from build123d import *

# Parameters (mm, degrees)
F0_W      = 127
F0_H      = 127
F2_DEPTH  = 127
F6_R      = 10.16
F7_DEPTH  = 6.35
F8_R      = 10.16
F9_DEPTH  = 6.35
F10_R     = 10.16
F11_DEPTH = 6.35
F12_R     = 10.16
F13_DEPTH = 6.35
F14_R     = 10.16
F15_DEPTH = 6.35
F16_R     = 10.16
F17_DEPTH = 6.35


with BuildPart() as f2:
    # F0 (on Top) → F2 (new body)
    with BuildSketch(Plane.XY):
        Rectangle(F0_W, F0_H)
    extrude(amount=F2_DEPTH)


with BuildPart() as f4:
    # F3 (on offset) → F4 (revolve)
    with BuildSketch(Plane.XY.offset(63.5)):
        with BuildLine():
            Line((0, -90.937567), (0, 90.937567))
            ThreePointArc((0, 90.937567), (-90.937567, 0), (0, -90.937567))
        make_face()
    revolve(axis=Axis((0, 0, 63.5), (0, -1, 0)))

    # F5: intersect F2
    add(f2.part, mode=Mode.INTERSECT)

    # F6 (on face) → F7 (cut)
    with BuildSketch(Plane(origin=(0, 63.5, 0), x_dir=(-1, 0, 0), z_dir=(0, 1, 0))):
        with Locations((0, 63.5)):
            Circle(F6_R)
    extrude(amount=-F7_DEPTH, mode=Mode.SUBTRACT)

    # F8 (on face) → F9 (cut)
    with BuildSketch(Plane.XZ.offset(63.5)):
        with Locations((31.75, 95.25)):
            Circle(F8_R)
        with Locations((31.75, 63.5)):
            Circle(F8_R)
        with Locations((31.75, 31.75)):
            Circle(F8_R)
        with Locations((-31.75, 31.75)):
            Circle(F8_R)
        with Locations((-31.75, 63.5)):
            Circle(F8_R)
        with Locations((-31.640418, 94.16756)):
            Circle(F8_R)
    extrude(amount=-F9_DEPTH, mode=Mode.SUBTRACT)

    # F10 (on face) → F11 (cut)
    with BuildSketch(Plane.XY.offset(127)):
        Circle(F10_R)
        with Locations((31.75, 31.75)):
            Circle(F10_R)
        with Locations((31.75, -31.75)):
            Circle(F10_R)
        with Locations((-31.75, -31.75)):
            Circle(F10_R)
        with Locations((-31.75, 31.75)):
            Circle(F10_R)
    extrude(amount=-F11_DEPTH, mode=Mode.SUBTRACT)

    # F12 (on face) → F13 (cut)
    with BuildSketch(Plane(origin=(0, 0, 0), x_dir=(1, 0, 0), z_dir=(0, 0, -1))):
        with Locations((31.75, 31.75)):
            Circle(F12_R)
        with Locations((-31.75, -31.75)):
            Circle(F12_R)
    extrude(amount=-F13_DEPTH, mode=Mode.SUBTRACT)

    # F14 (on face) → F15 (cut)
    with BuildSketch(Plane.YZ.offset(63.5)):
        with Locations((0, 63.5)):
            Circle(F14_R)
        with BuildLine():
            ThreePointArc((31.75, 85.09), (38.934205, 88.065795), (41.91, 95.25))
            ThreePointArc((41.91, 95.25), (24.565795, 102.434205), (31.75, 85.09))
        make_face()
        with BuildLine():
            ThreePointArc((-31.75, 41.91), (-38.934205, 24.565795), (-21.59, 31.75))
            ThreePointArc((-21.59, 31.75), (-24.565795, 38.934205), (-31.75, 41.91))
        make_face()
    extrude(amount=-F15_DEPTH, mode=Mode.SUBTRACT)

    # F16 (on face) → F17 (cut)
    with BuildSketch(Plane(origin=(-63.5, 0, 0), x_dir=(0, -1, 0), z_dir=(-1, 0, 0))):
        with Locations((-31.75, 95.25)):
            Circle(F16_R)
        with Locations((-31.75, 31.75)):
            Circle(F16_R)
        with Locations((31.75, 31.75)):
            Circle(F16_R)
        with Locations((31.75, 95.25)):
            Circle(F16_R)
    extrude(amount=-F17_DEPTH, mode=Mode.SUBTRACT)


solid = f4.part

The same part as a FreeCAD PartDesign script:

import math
import FreeCAD as App
import Part
import Sketcher

V = App.Vector
Q = App.Units.Quantity

doc = App.newDocument("Part")
body = doc.addObject("PartDesign::Body", "Body")

# Sketch on XY plane
sketch1 = body.newObject("Sketcher::SketchObject", "Sketch")
sketch1.AttachmentSupport = (doc.getObject("XY_Plane"), [""])
sketch1.MapMode = "FlatFace"
sketch1.addGeometry([
    Part.LineSegment(V(-64, 64, 0), V(-64, -64, 0)),
    Part.LineSegment(V(-64, -64, 0), V(64, -64, 0)),
    Part.LineSegment(V(64, -64, 0), V(64, 64, 0)),
    Part.LineSegment(V(64, 64, 0), V(-64, 64, 0)),
], False)
sketch1.addConstraint([
    Sketcher.Constraint("Coincident", 0, 2, 1, 1),
    Sketcher.Constraint("Coincident", 1, 2, 2, 1),
    Sketcher.Constraint("Coincident", 2, 2, 3, 1),
    Sketcher.Constraint("Coincident", 3, 2, 0, 1),
    Sketcher.Constraint("Vertical", 0),
    Sketcher.Constraint("Horizontal", 1),
    Sketcher.Constraint("Vertical", 2),
    Sketcher.Constraint("Horizontal", 3),
    Sketcher.Constraint("Symmetric", 0, 2, 2, 2, -1, 1),
    Sketcher.Constraint("Equal", 3, 0),
    Sketcher.Constraint("DistanceX", 1, 1, 1, 2, Q("5 in")),
])
pad1 = body.newObject("PartDesign::Pad", "Pad")
pad1.Profile = sketch1
pad1.Length = Q("5 in")
body2 = doc.addObject("PartDesign::Body", "Body001")

# Sketch on XY plane
sketch2 = body2.newObject("Sketcher::SketchObject", "Sketch001")
sketch2.AttachmentSupport = (doc.getObject("XY_Plane001"), [""])
sketch2.MapMode = "FlatFace"
sketch2.AttachmentOffset = App.Placement(V(0, 0, 2.5 * 25.4), App.Rotation())
sketch2.addGeometry([
    Part.LineSegment(V(0, -91, 0), V(0, 91, 0)),
    Part.ArcOfCircle(Part.Circle(V(0, 0, 0), V(0, 0, 1), 91), math.radians(90), math.radians(270)),
], False)
sketch2.addConstraint([
    Sketcher.Constraint("Coincident", 0, 1, 1, 2),
    Sketcher.Constraint("Coincident", 1, 1, 0, 2),
    Sketcher.Constraint("Vertical", 0),
    Sketcher.Constraint("Coincident", 1, 3, -1, 1),
    Sketcher.Constraint("PointOnObject", 0, 1, -2),
    Sketcher.Constraint("Radius", 1, Q("90.937567 mm")),
])
revolution = body2.newObject("PartDesign::Revolution", "Revolution")
revolution.Profile = sketch2
revolution.ReferenceAxis = (sketch2, ["V_Axis"])
revolution.Angle = 360
doc.recompute()

boolean = body2.newObject("PartDesign::Boolean", "Boolean")
boolean.Type = "Common"
boolean.addObjects([body])

# Sketch on XZ plane
sketch3 = body2.newObject("Sketcher::SketchObject", "Sketch002")
sketch3.AttachmentSupport = (doc.getObject("XZ_Plane001"), [""])
sketch3.MapMode = "FlatFace"
sketch3.AttachmentOffset = App.Placement(V(0, 0, -2.5 * 25.4), App.Rotation())
sketch3.addGeometry(Part.Circle(V(0, 64, 0), V(0, 0, 1), 10), False)
sketch3.addConstraint([
    Sketcher.Constraint("PointOnObject", 0, 3, -2),
    Sketcher.Constraint("Diameter", 0, Q("0.8 in")),
    Sketcher.Constraint("DistanceY", -1, 1, 0, 3, Q("2.5 in")),
])
pocket1 = body2.newObject("PartDesign::Pocket", "Pocket")
pocket1.Profile = sketch3
pocket1.Length = Q("0.25 in")
pocket1.Reversed = True

# Sketch on XZ plane
sketch4 = body2.newObject("Sketcher::SketchObject", "Sketch003")
sketch4.AttachmentSupport = (doc.getObject("XZ_Plane001"), [""])
sketch4.MapMode = "FlatFace"
sketch4.AttachmentOffset = App.Placement(V(0, 0, 2.5 * 25.4), App.Rotation())
sketch4.addGeometry([
    Part.Circle(V(32, 95, 0), V(0, 0, 1), 10),  # 0
    Part.Circle(V(32, 64, 0), V(0, 0, 1), 10),  # 1
    Part.Circle(V(32, 32, 0), V(0, 0, 1), 10),  # 2
    Part.Circle(V(-32, 32, 0), V(0, 0, 1), 10),  # 3
    Part.Circle(V(-32, 64, 0), V(0, 0, 1), 10),  # 4
    Part.Circle(V(-32, 94, 0), V(0, 0, 1), 10),  # 5
], False)
sketch4.addConstraint([
    Sketcher.Constraint("Equal", 0, 1),
    Sketcher.Constraint("Equal", 1, 2),
    Sketcher.Constraint("Equal", 2, 3),
    Sketcher.Constraint("Equal", 3, 4),
    Sketcher.Constraint("Equal", 4, 5),
    Sketcher.Constraint("Symmetric", 2, 3, 3, 3, -2),
    Sketcher.Constraint("Symmetric", 1, 3, 4, 3, -2),
    Sketcher.Constraint("Vertical", 0, 3, 1, 3),
    Sketcher.Constraint("Vertical", 1, 3, 2, 3),
    Sketcher.Constraint("Diameter", 0, Q("0.8 in")),
    Sketcher.Constraint("DistanceY", -1, 1, 1, 3, Q("2.5 in")),
    Sketcher.Constraint("DistanceY", 2, 3, 0, 3, Q("2.5 in")),
    Sketcher.Constraint("DistanceX", 3, 3, 2, 3, Q("2.5 in")),
    Sketcher.Constraint("DistanceY", -1, 1, 0, 3, Q("3.75 in")),
    Sketcher.Constraint("DistanceX", 5, 3, -1, 1, Q("31.640418 mm")),
    Sketcher.Constraint("DistanceY", -1, 1, 5, 3, Q("94.16756 mm")),
])
pocket2 = body2.newObject("PartDesign::Pocket", "Pocket001")
pocket2.Profile = sketch4
pocket2.Length = Q("0.25 in")

# Sketch on XY plane
sketch5 = body2.newObject("Sketcher::SketchObject", "Sketch004")
sketch5.AttachmentSupport = (doc.getObject("XY_Plane001"), [""])
sketch5.MapMode = "FlatFace"
sketch5.AttachmentOffset = App.Placement(V(0, 0, 5 * 25.4), App.Rotation())
sketch5.addGeometry([
    Part.Circle(V(0, 0, 0), V(0, 0, 1), 10),  # 0
    Part.Circle(V(32, 32, 0), V(0, 0, 1), 10),  # 1
    Part.Circle(V(32, -32, 0), V(0, 0, 1), 10),  # 2
    Part.Circle(V(-32, -32, 0), V(0, 0, 1), 10),  # 3
    Part.Circle(V(-32, 32, 0), V(0, 0, 1), 10),  # 4
], False)
sketch5.addConstraint([
    Sketcher.Constraint("Coincident", 0, 3, -1, 1),
    Sketcher.Constraint("Equal", 0, 1),
    Sketcher.Constraint("Equal", 1, 2),
    Sketcher.Constraint("Equal", 2, 3),
    Sketcher.Constraint("Equal", 3, 4),
    Sketcher.Constraint("Symmetric", 1, 3, 3, 3, -1, 1),
    Sketcher.Constraint("Symmetric", 2, 3, 4, 3, -1, 1),
    Sketcher.Constraint("Symmetric", 2, 3, 3, 3, -2),
    Sketcher.Constraint("Diameter", 0, Q("0.8 in")),
    Sketcher.Constraint("DistanceY", 2, 3, 1, 3, Q("2.5 in")),
    Sketcher.Constraint("DistanceX", 3, 3, 2, 3, Q("2.5 in")),
])
pocket3 = body2.newObject("PartDesign::Pocket", "Pocket002")
pocket3.Profile = sketch5
pocket3.Length = Q("0.25 in")

# Sketch on XY plane
sketch6 = body2.newObject("Sketcher::SketchObject", "Sketch005")
sketch6.AttachmentSupport = (doc.getObject("XY_Plane001"), [""])
sketch6.MapMode = "FlatFace"
sketch6.addGeometry([
    Part.Circle(V(32, -32, 0), V(0, 0, 1), 10),
    Part.Circle(V(-32, 32, 0), V(0, 0, 1), 10),
], False)
sketch6.addConstraint([
    Sketcher.Constraint("Equal", 0, 1),
    Sketcher.Constraint("Symmetric", 0, 3, 1, 3, -1, 1),
    Sketcher.Constraint("Diameter", 0, Q("0.8 in")),
    Sketcher.Constraint("DistanceX", 1, 3, 0, 3, Q("2.5 in")),
    Sketcher.Constraint("DistanceY", 0, 3, 1, 3, Q("2.5 in")),
])
pocket4 = body2.newObject("PartDesign::Pocket", "Pocket003")
pocket4.Profile = sketch6
pocket4.Length = Q("0.25 in")
pocket4.Reversed = True

# Sketch on YZ plane
sketch7 = body2.newObject("Sketcher::SketchObject", "Sketch006")
sketch7.AttachmentSupport = (doc.getObject("YZ_Plane001"), [""])
sketch7.MapMode = "FlatFace"
sketch7.AttachmentOffset = App.Placement(V(0, 0, 2.5 * 25.4), App.Rotation())
sketch7.addGeometry([
    Part.Circle(V(0, 64, 0), V(0, 0, 1), 10),  # 0
    Part.ArcOfCircle(Part.Circle(V(32, 95, 0), V(0, 0, 1), 10), math.radians(-90), math.radians(0)),  # 1
    Part.ArcOfCircle(Part.Circle(V(32, 95, 0), V(0, 0, 1), 10), math.radians(0), math.radians(270)),  # 2
    Part.ArcOfCircle(Part.Circle(V(-32, 32, 0), V(0, 0, 1), 10), math.radians(90), math.radians(360)),  # 3
    Part.ArcOfCircle(Part.Circle(V(-32, 32, 0), V(0, 0, 1), 10), math.radians(0), math.radians(90)),  # 4
], False)
sketch7.addConstraint([
    Sketcher.Constraint("Tangent", 1, 1, 2, 2),
    Sketcher.Constraint("Coincident", 2, 1, 1, 2),
    Sketcher.Constraint("Tangent", 3, 1, 4, 2),
    Sketcher.Constraint("Coincident", 4, 1, 3, 2),
    Sketcher.Constraint("Equal", 0, 1),
    Sketcher.Constraint("Equal", 2, 3),
    Sketcher.Constraint("PointOnObject", 0, 3, -2),
    Sketcher.Constraint("Horizontal", 1, 3, 2, 1),
    Sketcher.Constraint("Horizontal", 3, 3, 4, 1),
    Sketcher.Constraint("Vertical", 2, 3, 1, 1),
    Sketcher.Constraint("Vertical", 4, 3, 3, 1),
    Sketcher.Constraint("Diameter", 0, Q("0.8 in")),
    Sketcher.Constraint("DistanceY", -1, 1, 0, 3, Q("2.5 in")),
    Sketcher.Constraint("DistanceX", 3, 3, 2, 3, Q("2.5 in")),
    Sketcher.Constraint("DistanceY", 3, 3, 2, 3, Q("2.5 in")),
    Sketcher.Constraint("DistanceX", -1, 1, 1, 3, Q("1.25 in")),
    Sketcher.Constraint("DistanceY", -1, 1, 1, 3, Q("3.75 in")),
])
pocket5 = body2.newObject("PartDesign::Pocket", "Pocket004")
pocket5.Profile = sketch7
pocket5.Length = Q("0.25 in")

# Sketch on YZ plane
sketch8 = body2.newObject("Sketcher::SketchObject", "Sketch007")
sketch8.AttachmentSupport = (doc.getObject("YZ_Plane001"), [""])
sketch8.MapMode = "FlatFace"
sketch8.AttachmentOffset = App.Placement(V(0, 0, -2.5 * 25.4), App.Rotation())
sketch8.addGeometry([
    Part.Circle(V(32, 95, 0), V(0, 0, 1), 10),
    Part.Circle(V(32, 32, 0), V(0, 0, 1), 10),
    Part.Circle(V(-32, 32, 0), V(0, 0, 1), 10),
    Part.Circle(V(-32, 95, 0), V(0, 0, 1), 10),
], False)
sketch8.addConstraint([
    Sketcher.Constraint("Equal", 0, 1),
    Sketcher.Constraint("Equal", 1, 2),
    Sketcher.Constraint("Equal", 2, 3),
    Sketcher.Constraint("Symmetric", 1, 3, 2, 3, -2),
    Sketcher.Constraint("Symmetric", 0, 3, 3, 3, -2),
    Sketcher.Constraint("Vertical", 0, 3, 1, 3),
    Sketcher.Constraint("Diameter", 0, Q("0.8 in")),
    Sketcher.Constraint("DistanceY", 1, 3, 0, 3, Q("2.5 in")),
    Sketcher.Constraint("DistanceX", 2, 3, 1, 3, Q("2.5 in")),
    Sketcher.Constraint("DistanceY", -1, 1, 0, 3, Q("3.75 in")),
])
pocket6 = body2.newObject("PartDesign::Pocket", "Pocket005")
pocket6.Profile = sketch8
pocket6.Length = Q("0.25 in")
pocket6.Reversed = True

doc.recompute()
